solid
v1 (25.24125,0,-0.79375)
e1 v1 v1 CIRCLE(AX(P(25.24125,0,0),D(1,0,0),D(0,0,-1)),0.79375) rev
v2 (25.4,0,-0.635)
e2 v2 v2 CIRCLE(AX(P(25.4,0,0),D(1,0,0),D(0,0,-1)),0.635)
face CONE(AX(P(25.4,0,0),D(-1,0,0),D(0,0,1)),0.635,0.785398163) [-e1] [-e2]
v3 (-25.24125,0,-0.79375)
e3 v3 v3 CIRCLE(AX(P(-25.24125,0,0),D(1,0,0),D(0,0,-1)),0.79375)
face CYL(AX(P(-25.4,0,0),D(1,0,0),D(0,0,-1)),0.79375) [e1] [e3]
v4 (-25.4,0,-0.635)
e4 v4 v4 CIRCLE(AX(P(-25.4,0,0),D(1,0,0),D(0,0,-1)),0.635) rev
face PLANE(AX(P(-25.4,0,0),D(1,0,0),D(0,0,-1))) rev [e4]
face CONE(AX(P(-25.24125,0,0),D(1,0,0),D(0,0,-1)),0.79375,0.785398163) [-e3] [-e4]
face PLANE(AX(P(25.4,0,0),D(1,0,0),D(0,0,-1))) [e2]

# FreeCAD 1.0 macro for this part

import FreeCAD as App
import Part
import Sketcher

V = App.Vector
Q = App.Units.Quantity


def edges_at(feature, points):
    """Names of the edges that pass closest to the given points."""
    edges = feature.Shape.Edges
    near = lambda p: min(range(len(edges)), key=lambda i: edges[i].distToShape(Part.Vertex(*p))[0])
    return sorted({f"Edge{near(p) + 1}" for p in points})

doc = App.newDocument("Part")
body = doc.addObject("PartDesign::Body", "Body")

# Sketch on YZ plane
sketch1 = doc.addObject("Sketcher::SketchObject", "Sketch")
body.addObject(sketch1)
sketch1.AttachmentSupport = (doc.YZ_Plane, [""])
sketch1.MapMode = "FlatFace"
sketch1.addGeometry(Part.Circle(V(0, 0, 0), V(0, 0, 1), 0.8), False)
sketch1.addConstraint(Sketcher.Constraint("Coincident", 0, 3, -1, 1))
sketch1.addConstraint(Sketcher.Constraint("Diameter", 0, Q("0.0625 in")))
pad1 = doc.addObject("PartDesign::Pad", "Pad")
body.addObject(pad1)
pad1.Profile = sketch1
pad1.Type = "TwoLengths"
pad1.Length = Q("1 in")
pad1.Length2 = Q("1 in")
doc.recompute()

chamfer = doc.addObject("PartDesign::Chamfer", "Chamfer")
body.addObject(chamfer)
chamfer.Base = (pad1, edges_at(pad1, [(-25.4, 0, 0.794), (25.4, 0, 0.794)]))
chamfer.Size = 0.15875

doc.recompute()
